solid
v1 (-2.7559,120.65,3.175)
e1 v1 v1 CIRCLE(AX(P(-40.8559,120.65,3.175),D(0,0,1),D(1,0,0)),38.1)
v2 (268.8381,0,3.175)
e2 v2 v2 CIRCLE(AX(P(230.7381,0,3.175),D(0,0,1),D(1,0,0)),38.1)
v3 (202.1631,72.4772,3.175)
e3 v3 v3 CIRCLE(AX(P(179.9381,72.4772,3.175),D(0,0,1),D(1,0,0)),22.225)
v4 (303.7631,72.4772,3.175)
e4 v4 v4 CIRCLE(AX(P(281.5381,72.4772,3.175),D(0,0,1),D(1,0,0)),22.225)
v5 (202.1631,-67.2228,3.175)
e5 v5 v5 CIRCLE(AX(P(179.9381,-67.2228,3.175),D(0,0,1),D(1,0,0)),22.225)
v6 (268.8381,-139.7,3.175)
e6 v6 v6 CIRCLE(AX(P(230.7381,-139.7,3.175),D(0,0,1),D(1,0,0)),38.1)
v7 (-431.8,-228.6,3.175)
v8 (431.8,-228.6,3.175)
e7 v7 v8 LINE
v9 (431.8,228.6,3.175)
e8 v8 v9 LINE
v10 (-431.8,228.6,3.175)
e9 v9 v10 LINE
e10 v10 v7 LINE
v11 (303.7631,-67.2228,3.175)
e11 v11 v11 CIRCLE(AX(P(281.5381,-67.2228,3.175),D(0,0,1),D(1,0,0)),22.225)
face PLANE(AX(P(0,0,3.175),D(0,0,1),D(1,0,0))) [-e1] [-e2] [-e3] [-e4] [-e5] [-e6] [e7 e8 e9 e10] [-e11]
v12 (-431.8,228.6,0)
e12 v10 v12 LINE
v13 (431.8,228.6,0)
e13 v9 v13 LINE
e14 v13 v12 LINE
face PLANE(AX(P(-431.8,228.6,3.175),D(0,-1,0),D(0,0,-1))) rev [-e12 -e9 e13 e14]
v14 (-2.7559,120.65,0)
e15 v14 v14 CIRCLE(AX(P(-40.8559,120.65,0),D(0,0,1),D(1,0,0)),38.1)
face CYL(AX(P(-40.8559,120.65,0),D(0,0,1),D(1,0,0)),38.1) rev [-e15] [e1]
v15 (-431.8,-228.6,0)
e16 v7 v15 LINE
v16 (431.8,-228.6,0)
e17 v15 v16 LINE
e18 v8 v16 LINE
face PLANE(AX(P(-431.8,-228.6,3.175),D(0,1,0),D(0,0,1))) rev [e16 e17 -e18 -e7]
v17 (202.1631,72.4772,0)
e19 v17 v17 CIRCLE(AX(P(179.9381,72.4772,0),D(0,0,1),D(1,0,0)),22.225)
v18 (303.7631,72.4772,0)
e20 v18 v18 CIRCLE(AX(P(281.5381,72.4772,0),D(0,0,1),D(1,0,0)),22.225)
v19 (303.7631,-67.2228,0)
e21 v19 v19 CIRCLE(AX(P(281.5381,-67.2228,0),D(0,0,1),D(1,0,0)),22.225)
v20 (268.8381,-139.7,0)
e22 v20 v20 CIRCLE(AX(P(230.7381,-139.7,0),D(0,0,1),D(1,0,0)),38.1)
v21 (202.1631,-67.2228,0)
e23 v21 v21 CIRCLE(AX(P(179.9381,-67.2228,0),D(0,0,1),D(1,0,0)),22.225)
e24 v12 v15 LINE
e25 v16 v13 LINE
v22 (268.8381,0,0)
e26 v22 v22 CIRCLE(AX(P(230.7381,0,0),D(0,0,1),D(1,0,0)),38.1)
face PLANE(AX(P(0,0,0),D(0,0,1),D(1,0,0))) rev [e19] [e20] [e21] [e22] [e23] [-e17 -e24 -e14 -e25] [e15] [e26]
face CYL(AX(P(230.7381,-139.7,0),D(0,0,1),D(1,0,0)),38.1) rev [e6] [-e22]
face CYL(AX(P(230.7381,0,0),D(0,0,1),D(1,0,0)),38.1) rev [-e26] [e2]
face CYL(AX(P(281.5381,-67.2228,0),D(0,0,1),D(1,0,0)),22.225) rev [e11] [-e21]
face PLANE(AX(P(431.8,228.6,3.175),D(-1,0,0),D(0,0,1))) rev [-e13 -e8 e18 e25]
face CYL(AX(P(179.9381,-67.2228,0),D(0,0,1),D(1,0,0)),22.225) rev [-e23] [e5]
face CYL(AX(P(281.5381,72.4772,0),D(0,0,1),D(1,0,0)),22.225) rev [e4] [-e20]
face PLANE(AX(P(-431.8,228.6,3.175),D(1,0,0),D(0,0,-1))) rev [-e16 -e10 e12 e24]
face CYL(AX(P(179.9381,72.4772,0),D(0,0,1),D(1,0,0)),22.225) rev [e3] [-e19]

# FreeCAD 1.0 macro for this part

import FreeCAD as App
import Part
import Sketcher
from FreeCAD import Vector
Q = App.Units.Quantity

doc = App.newDocument("Part")
body = doc.addObject("PartDesign::Body", "Body")

# Sketch on XY plane
sketch1 = body.newObject("Sketcher::SketchObject", "Sketch")
sketch1.AttachmentSupport = (doc.getObject("XY_Plane"), [""])
sketch1.MapMode = "FlatFace"
sketch1.addGeometry(Part.LineSegment(Vector(-432, 229, 0), Vector(-432, -229, 0)), False)
sketch1.addGeometry(Part.LineSegment(Vector(-432, -229, 0), Vector(432, -229, 0)), False)
sketch1.addGeometry(Part.LineSegment(Vector(432, -229, 0), Vector(432, 229, 0)), False)
sketch1.addGeometry(Part.LineSegment(Vector(432, 229, 0), Vector(-432, 229, 0)), False)
sketch1.addConstraint(Sketcher.Constraint("Coincident", 0, 2, 1, 1))
sketch1.addConstraint(Sketcher.Constraint("Coincident", 1, 2, 2, 1))
sketch1.addConstraint(Sketcher.Constraint("Coincident", 2, 2, 3, 1))
sketch1.addConstraint(Sketcher.Constraint("Coincident", 3, 2, 0, 1))
sketch1.addConstraint(Sketcher.Constraint("Vertical", 0))
sketch1.addConstraint(Sketcher.Constraint("Horizontal", 1))
sketch1.addConstraint(Sketcher.Constraint("Vertical", 2))
sketch1.addConstraint(Sketcher.Constraint("Horizontal", 3))
sketch1.addConstraint(Sketcher.Constraint("Symmetric", 0, 2, 2, 2, -1, 1))
sketch1.addConstraint(Sketcher.Constraint("DistanceX", 1, 1, 1, 2, Q("34 in")))
sketch1.addConstraint(Sketcher.Constraint("DistanceY", 0, 2, 0, 1, Q("18 in")))
pad1 = body.newObject("PartDesign::Pad", "Pad")
pad1.Profile = sketch1
pad1.Length = Q("0.125 in")

# Sketch on XY plane
sketch2 = body.newObject("Sketcher::SketchObject", "Sketch001")
sketch2.AttachmentSupport = (doc.getObject("XY_Plane"), [""])
sketch2.MapMode = "FlatFace"
sketch2.AttachmentOffset = App.Placement(Vector(0, 0, 0.125 * 25.4), App.Rotation())
sketch2.addGeometry(Part.Circle(Vector(231, 0, 0), Vector(0, 0, 1), 38), False)
sketch2.addGeometry(Part.Circle(Vector(231, -140, 0), Vector(0, 0, 1), 38), False)
sketch2.addGeometry(Part.Circle(Vector(180, -67, 0), Vector(0, 0, 1), 22), False)
sketch2.addGeometry(Part.Circle(Vector(282, -67, 0), Vector(0, 0, 1), 22), False)
sketch2.addGeometry(Part.Circle(Vector(180, 72, 0), Vector(0, 0, 1), 22), False)
sketch2.addGeometry(Part.Circle(Vector(282, 72, 0), Vector(0, 0, 1), 22), False)
sketch2.addGeometry(Part.Circle(Vector(-41, 121, 0), Vector(0, 0, 1), 38), False)
sketch2.addConstraint(Sketcher.Constraint("Equal", 0, 1))
sketch2.addConstraint(Sketcher.Constraint("Equal", 2, 3))
sketch2.addConstraint(Sketcher.Constraint("Equal", 3, 4))
sketch2.addConstraint(Sketcher.Constraint("Equal", 4, 5))
sketch2.addConstraint(Sketcher.Constraint("Equal", 1, 6))
sketch2.addConstraint(Sketcher.Constraint("PointOnObject", 0, 3, -1))
sketch2.addConstraint(Sketcher.Constraint("Horizontal", 2, 3, 3, 3))
sketch2.addConstraint(Sketcher.Constraint("Horizontal", 4, 3, 5, 3))
sketch2.addConstraint(Sketcher.Constraint("Vertical", 0, 3, 1, 3))
sketch2.addConstraint(Sketcher.Constraint("Vertical", 2, 3, 4, 3))
sketch2.addConstraint(Sketcher.Constraint("Vertical", 3, 3, 5, 3))
sketch2.addConstraint(Sketcher.Constraint("Diameter", 0, Q("3 in")))
sketch2.addConstraint(Sketcher.Constraint("Diameter", 2, Q("1.75 in")))
sketch2.addConstraint(Sketcher.Constraint("DistanceX", 2, 3, 0, 3, Q("2 in")))
sketch2.addConstraint(Sketcher.Constraint("DistanceX", 0, 3, 3, 3, Q("2 in")))
sketch2.addConstraint(Sketcher.Constraint("DistanceY", 1, 3, -1, 1, Q("5.5 in")))
sketch2.addConstraint(Sketcher.Constraint("DistanceY", 2, 3, 4, 3, Q("5.5 in")))
sketch2.addConstraint(Sketcher.Constraint("DistanceY", -1, 1, 6, 3, Q("4.75 in")))
sketch2.addConstraint(Sketcher.Constraint("DistanceX", 6, 3, -1, 1, Q("1.6085 in")))
sketch2.addConstraint(Sketcher.Constraint("DistanceX", -1, 1, 0, 3, Q("230.7381 mm")))
sketch2.addConstraint(Sketcher.Constraint("DistanceY", 2, 3, -1, 1, Q("67.2228 mm")))
pocket1 = body.newObject("PartDesign::Pocket", "Pocket")
pocket1.Profile = sketch2
pocket1.Type = "ThroughAll"

doc.recompute()
